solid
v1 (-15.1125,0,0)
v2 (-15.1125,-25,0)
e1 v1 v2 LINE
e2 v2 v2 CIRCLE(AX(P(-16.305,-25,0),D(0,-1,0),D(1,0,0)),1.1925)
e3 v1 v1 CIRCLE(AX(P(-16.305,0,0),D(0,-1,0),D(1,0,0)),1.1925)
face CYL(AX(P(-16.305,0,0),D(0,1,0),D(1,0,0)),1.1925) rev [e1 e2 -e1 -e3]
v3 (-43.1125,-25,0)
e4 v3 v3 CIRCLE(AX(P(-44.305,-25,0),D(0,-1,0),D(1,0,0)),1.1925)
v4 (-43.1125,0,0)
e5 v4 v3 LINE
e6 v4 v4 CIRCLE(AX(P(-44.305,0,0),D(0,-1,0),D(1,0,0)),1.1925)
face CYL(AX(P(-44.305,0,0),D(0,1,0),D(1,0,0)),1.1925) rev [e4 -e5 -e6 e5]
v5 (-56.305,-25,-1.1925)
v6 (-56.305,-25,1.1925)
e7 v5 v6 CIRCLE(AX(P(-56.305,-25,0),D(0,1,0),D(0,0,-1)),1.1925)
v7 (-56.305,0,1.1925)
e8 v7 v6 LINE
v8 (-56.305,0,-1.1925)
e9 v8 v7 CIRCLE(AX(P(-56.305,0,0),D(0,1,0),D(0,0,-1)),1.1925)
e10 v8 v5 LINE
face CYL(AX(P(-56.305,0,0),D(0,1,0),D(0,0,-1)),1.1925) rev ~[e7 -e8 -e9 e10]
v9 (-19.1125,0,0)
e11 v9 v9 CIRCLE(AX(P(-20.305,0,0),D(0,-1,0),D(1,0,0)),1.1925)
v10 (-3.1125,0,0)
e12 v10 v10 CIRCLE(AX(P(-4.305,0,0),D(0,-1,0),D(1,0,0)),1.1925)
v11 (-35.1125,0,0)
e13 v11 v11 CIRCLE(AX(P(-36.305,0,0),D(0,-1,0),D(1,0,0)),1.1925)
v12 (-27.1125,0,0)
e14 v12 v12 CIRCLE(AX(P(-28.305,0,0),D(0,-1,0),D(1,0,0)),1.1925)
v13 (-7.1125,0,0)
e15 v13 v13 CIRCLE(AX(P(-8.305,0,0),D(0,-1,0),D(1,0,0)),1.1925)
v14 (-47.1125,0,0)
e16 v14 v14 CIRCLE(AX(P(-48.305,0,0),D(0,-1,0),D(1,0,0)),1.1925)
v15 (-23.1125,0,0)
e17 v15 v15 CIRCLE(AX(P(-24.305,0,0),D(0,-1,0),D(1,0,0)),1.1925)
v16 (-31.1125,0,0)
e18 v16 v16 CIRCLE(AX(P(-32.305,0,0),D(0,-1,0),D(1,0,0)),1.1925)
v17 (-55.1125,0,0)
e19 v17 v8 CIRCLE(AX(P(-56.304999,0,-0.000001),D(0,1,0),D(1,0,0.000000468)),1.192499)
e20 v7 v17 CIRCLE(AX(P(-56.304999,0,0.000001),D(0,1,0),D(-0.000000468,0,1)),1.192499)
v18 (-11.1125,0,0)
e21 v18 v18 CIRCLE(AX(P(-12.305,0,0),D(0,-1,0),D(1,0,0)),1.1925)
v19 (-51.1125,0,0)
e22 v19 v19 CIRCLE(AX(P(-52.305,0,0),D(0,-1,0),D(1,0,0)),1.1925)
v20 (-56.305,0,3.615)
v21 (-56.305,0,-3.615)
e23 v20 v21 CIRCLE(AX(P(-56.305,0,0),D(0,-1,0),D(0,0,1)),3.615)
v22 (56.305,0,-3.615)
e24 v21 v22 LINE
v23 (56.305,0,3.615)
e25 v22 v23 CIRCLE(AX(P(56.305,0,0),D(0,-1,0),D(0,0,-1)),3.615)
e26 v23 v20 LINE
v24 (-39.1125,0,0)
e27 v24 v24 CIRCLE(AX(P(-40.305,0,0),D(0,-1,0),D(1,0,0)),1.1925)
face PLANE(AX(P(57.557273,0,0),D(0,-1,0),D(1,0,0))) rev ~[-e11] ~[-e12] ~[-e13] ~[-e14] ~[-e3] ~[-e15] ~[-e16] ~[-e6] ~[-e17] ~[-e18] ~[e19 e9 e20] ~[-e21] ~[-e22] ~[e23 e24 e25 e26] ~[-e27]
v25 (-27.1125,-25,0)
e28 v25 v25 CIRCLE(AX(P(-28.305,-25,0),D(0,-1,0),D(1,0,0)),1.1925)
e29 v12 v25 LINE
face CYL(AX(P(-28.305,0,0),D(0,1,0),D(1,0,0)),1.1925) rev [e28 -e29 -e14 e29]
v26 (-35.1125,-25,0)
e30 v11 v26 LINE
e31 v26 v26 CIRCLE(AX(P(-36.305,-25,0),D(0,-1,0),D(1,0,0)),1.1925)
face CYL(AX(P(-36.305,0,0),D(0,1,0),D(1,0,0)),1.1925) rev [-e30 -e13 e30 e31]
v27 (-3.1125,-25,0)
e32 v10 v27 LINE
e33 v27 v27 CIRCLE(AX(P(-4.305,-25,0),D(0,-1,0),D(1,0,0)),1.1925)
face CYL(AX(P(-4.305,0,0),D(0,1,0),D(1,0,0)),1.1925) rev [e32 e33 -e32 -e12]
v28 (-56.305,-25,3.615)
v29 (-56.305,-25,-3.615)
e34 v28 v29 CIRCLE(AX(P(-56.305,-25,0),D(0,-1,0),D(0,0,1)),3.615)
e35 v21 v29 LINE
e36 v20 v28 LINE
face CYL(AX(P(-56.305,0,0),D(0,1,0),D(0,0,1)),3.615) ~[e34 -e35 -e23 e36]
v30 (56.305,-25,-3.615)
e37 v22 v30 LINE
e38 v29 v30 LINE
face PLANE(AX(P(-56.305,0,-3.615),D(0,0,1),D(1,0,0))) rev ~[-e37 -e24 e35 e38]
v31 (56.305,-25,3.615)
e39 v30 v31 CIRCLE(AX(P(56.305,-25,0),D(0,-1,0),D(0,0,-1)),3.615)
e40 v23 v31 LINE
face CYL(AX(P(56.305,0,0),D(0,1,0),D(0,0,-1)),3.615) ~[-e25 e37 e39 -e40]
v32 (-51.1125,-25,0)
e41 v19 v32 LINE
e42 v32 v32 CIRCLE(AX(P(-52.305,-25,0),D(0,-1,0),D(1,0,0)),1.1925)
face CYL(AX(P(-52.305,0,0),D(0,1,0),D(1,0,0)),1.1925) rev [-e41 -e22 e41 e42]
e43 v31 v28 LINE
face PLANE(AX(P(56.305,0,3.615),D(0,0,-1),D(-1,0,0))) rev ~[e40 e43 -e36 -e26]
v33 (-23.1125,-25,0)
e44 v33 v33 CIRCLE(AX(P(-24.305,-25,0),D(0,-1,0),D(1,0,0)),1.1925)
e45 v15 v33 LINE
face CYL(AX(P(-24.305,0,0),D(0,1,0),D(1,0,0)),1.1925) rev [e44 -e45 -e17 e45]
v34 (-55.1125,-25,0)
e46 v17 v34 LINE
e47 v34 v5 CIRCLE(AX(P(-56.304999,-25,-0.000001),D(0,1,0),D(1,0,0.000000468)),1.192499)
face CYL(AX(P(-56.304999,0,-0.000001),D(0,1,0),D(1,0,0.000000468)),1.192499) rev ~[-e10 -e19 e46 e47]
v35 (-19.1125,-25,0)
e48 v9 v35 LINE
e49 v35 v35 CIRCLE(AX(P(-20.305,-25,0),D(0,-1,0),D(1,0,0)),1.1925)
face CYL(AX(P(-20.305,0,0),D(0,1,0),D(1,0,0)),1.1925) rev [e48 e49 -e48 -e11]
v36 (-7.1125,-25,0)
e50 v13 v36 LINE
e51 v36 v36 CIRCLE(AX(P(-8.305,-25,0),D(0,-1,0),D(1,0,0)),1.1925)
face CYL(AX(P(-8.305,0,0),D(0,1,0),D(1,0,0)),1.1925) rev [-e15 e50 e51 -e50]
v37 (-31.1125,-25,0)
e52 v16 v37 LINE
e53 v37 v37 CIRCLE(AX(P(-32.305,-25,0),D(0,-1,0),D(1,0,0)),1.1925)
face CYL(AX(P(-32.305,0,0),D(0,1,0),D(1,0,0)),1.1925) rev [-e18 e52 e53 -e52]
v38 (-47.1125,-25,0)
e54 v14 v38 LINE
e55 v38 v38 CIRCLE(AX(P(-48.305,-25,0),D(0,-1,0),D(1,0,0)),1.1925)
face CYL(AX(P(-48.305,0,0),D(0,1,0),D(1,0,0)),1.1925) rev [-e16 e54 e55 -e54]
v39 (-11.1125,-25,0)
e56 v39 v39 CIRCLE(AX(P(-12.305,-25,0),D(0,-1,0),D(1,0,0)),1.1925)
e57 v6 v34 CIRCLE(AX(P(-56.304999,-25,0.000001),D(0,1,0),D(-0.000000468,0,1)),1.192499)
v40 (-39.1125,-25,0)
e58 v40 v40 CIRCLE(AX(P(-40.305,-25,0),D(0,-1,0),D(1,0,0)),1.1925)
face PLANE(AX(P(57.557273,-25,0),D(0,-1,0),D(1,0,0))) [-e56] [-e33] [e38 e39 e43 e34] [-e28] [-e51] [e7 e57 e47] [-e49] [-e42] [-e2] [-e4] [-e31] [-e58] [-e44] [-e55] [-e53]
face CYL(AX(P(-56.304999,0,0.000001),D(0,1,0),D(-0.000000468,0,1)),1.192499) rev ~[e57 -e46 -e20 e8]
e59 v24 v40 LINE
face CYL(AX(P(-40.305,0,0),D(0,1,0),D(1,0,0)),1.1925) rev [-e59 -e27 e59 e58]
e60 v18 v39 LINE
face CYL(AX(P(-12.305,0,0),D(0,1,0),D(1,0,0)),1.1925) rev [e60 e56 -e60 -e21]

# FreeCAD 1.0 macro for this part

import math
import FreeCAD as App
import Part
import Sketcher

V = App.Vector
Q = App.Units.Quantity

doc = App.newDocument("Part")
body = doc.addObject("PartDesign::Body", "Body")

# Sketch on XZ plane
sketch1 = body.newObject("Sketcher::SketchObject", "Sketch")
sketch1.AttachmentSupport = (doc.getObject("XZ_Plane"), [""])
sketch1.MapMode = "FlatFace"
sketch1.addGeometry(Part.ArcOfCircle(Part.Circle(V(56.305, 0, 0), V(0, 0, 1), 3.615), math.radians(-90), math.radians(90)), False)
sketch1.addGeometry(Part.LineSegment(V(56.305, 3.615, 0), V(-56.305, 3.615, 0)), False)
sketch1.addGeometry(Part.ArcOfCircle(Part.Circle(V(-56.305, 0, 0), V(0, 0, 1), 3.615), math.radians(90), math.radians(270)), False)
sketch1.addGeometry(Part.LineSegment(V(-56.305, -3.615, 0), V(56.305, -3.615, 0)), False)
sketch1.addGeometry(Part.Circle(V(-52.305, 0, 0), V(0, 0, 1), 1.1925), False)
sketch1.addGeometry(Part.Circle(V(-48.305, 0, 0), V(0, 0, 1), 1.1925), False)
sketch1.addGeometry(Part.Circle(V(-44.305, 0, 0), V(0, 0, 1), 1.1925), False)
sketch1.addGeometry(Part.Circle(V(-40.305, 0, 0), V(0, 0, 1), 1.1925), False)
sketch1.addGeometry(Part.Circle(V(-36.305, 0, 0), V(0, 0, 1), 1.1925), False)
sketch1.addGeometry(Part.Circle(V(-32.305, 0, 0), V(0, 0, 1), 1.1925), False)
sketch1.addGeometry(Part.Circle(V(-28.305, 0, 0), V(0, 0, 1), 1.1925), False)
sketch1.addGeometry(Part.Circle(V(-24.305, 0, 0), V(0, 0, 1), 1.1925), False)
sketch1.addGeometry(Part.Circle(V(-20.305, 0, 0), V(0, 0, 1), 1.1925), False)
sketch1.addGeometry(Part.Circle(V(-16.305, 0, 0), V(0, 0, 1), 1.1925), False)
sketch1.addGeometry(Part.Circle(V(-12.305, 0, 0), V(0, 0, 1), 1.1925), False)
sketch1.addGeometry(Part.Circle(V(-8.305, 0, 0), V(0, 0, 1), 1.1925), False)
sketch1.addGeometry(Part.Circle(V(-4.305, 0, 0), V(0, 0, 1), 1.1925), False)
sketch1.addGeometry(Part.ArcOfCircle(Part.Circle(V(-56.304999, 0.000001, 0), V(0, 0, 1), 1.192499), math.radians(-0.000027), math.radians(90.000027)), False)
sketch1.addGeometry(Part.ArcOfCircle(Part.Circle(V(-56.304999, -0.000001, 0), V(0, 0, 1), 1.192499), math.radians(-90.000027), math.radians(0.000027)), False)
sketch1.addGeometry(Part.ArcOfCircle(Part.Circle(V(-56.305, 0, 0), V(0, 0, 1), 1.1925), math.radians(90), math.radians(270)), False)
sketch1.addConstraint(Sketcher.Constraint("Tangent", 0, 2, 1, 1))
sketch1.addConstraint(Sketcher.Constraint("Tangent", 1, 2, 2, 1))
sketch1.addConstraint(Sketcher.Constraint("Tangent", 2, 2, 3, 1))
sketch1.addConstraint(Sketcher.Constraint("Tangent", 3, 2, 0, 1))
sketch1.addConstraint(Sketcher.Constraint("Tangent", 17, 1, 18, 2))
sketch1.addConstraint(Sketcher.Constraint("Tangent", 18, 1, 19, 2))
sketch1.addConstraint(Sketcher.Constraint("Tangent", 19, 1, 17, 2))
sketch1.addConstraint(Sketcher.Constraint("Horizontal", 1))
sketch1.addConstraint(Sketcher.Constraint("Horizontal", 3))
sketch1.addConstraint(Sketcher.Constraint("Coincident", 17, 3, 2, 3))
sketch1.addConstraint(Sketcher.Constraint("Equal", 4, 5))
sketch1.addConstraint(Sketcher.Constraint("Equal", 5, 6))
sketch1.addConstraint(Sketcher.Constraint("Equal", 6, 7))
sketch1.addConstraint(Sketcher.Constraint("Equal", 7, 8))
sketch1.addConstraint(Sketcher.Constraint("Equal", 8, 9))
sketch1.addConstraint(Sketcher.Constraint("Equal", 9, 10))
sketch1.addConstraint(Sketcher.Constraint("Equal", 10, 11))
sketch1.addConstraint(Sketcher.Constraint("Equal", 11, 12))
sketch1.addConstraint(Sketcher.Constraint("Equal", 12, 13))
sketch1.addConstraint(Sketcher.Constraint("Equal", 13, 14))
sketch1.addConstraint(Sketcher.Constraint("Equal", 14, 15))
sketch1.addConstraint(Sketcher.Constraint("Equal", 15, 16))
sketch1.addConstraint(Sketcher.Constraint("Equal", 16, 17))
sketch1.addConstraint(Sketcher.Constraint("Symmetric", 0, 3, 2, 3, -1, 1))
sketch1.addConstraint(Sketcher.Constraint("PointOnObject", 4, 3, -1))
sketch1.addConstraint(Sketcher.Constraint("PointOnObject", 5, 3, -1))
sketch1.addConstraint(Sketcher.Constraint("PointOnObject", 6, 3, -1))
sketch1.addConstraint(Sketcher.Constraint("PointOnObject", 7, 3, -1))
sketch1.addConstraint(Sketcher.Constraint("PointOnObject", 8, 3, -1))
sketch1.addConstraint(Sketcher.Constraint("PointOnObject", 9, 3, -1))
sketch1.addConstraint(Sketcher.Constraint("PointOnObject", 10, 3, -1))
sketch1.addConstraint(Sketcher.Constraint("PointOnObject", 11, 3, -1))
sketch1.addConstraint(Sketcher.Constraint("PointOnObject", 12, 3, -1))
sketch1.addConstraint(Sketcher.Constraint("PointOnObject", 13, 3, -1))
sketch1.addConstraint(Sketcher.Constraint("PointOnObject", 14, 3, -1))
sketch1.addConstraint(Sketcher.Constraint("PointOnObject", 15, 3, -1))
sketch1.addConstraint(Sketcher.Constraint("PointOnObject", 16, 3, -1))
sketch1.addConstraint(Sketcher.Constraint("PointOnObject", 17, 1, -1))
sketch1.addConstraint(Sketcher.Constraint("Vertical", 2, 2, 18, 1))
sketch1.addConstraint(Sketcher.Constraint("Vertical", 18, 1, 19, 1))
sketch1.addConstraint(Sketcher.Constraint("Diameter", 4, Q("2.385 mm")))
sketch1.addConstraint(Sketcher.Constraint("Radius", 0, Q("3.615 mm")))
sketch1.addConstraint(Sketcher.Constraint("DistanceX", 2, 3, 4, 3, Q("4 mm")))
sketch1.addConstraint(Sketcher.Constraint("DistanceX", 4, 3, 5, 3, Q("4 mm")))
sketch1.addConstraint(Sketcher.Constraint("DistanceX", 5, 3, 6, 3, Q("4 mm")))
sketch1.addConstraint(Sketcher.Constraint("DistanceX", 6, 3, 7, 3, Q("4 mm")))
sketch1.addConstraint(Sketcher.Constraint("DistanceX", 7, 3, 8, 3, Q("4 mm")))
sketch1.addConstraint(Sketcher.Constraint("DistanceX", 8, 3, 9, 3, Q("4 mm")))
sketch1.addConstraint(Sketcher.Constraint("DistanceX", 9, 3, 10, 3, Q("4 mm")))
sketch1.addConstraint(Sketcher.Constraint("DistanceX", 10, 3, 11, 3, Q("4 mm")))
sketch1.addConstraint(Sketcher.Constraint("DistanceX", 11, 3, 12, 3, Q("4 mm")))
sketch1.addConstraint(Sketcher.Constraint("DistanceX", 12, 3, 13, 3, Q("4 mm")))
sketch1.addConstraint(Sketcher.Constraint("DistanceX", 13, 3, 14, 3, Q("4 mm")))
sketch1.addConstraint(Sketcher.Constraint("DistanceX", 14, 3, 15, 3, Q("4 mm")))
sketch1.addConstraint(Sketcher.Constraint("DistanceX", 15, 3, 16, 3, Q("4 mm")))
sketch1.addConstraint(Sketcher.Constraint("DistanceX", 1, 2, 1, 1, Q("112.61 mm")))
pad1 = body.newObject("PartDesign::Pad", "Pad")
pad1.Profile = sketch1
pad1.Length = 25

doc.recompute()
